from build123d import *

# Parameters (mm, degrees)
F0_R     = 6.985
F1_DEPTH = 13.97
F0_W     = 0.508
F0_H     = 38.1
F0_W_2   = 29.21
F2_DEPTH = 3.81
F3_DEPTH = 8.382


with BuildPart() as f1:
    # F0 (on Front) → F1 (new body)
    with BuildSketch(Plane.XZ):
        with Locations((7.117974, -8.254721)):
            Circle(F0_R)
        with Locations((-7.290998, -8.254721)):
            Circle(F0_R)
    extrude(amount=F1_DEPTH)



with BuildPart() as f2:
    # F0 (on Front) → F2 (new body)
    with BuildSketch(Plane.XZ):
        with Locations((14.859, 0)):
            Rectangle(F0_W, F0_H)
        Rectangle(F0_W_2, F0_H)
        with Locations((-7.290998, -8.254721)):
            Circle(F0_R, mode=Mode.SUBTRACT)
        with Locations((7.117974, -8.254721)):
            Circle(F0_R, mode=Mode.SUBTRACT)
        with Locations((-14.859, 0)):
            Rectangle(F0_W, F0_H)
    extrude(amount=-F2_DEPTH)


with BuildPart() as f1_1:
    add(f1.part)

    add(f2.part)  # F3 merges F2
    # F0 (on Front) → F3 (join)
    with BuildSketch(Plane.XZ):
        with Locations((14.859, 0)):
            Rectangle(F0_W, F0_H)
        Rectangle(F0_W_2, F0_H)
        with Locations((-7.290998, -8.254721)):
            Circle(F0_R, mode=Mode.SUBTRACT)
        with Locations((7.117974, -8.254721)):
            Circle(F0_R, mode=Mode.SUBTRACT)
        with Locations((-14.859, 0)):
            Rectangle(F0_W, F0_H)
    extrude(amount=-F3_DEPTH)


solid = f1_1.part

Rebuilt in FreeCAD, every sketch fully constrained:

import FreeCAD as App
import Part
import Sketcher

V = App.Vector
Q = App.Units.Quantity


def add_polygon(sketch, points):
    """Adds a closed chain of lines whose ends are joined by coincident constraints."""
    first, n = sketch.GeometryCount, len(points)
    for a, b in zip(points, points[1:] + points[:1]):
        sketch.addGeometry(Part.LineSegment(App.Vector(*a, 0), App.Vector(*b, 0)), False)
    for i in range(n):
        sketch.addConstraint(Sketcher.Constraint("Coincident", first + i, 2, first + (i + 1) % n, 1))

doc = App.newDocument("Part")
body = doc.addObject("PartDesign::Body", "Body")
body.AllowCompound = True

# Sketch on XZ plane
sketch1 = body.newObject("Sketcher::SketchObject", "Sketch")
sketch1.AttachmentSupport = (doc.getObject("XZ_Plane"), [""])
sketch1.MapMode = "FlatFace"
sketch1.addGeometry(Part.Circle(V(7, -8, 0), V(0, 0, 1), 7), False)
sketch1.addGeometry(Part.Circle(V(-7, -8, 0), V(0, 0, 1), 7), False)
sketch1.addConstraint(Sketcher.Constraint("Equal", 0, 1))
sketch1.addConstraint(Sketcher.Constraint("Horizontal", 0, 3, 1, 3))
sketch1.addConstraint(Sketcher.Constraint("Diameter", 0, Q("0.55 in")))
sketch1.addConstraint(Sketcher.Constraint("DistanceY", 0, 3, -1, 1, Q("8.254721 mm")))
sketch1.addConstraint(Sketcher.Constraint("DistanceX", -1, 1, 0, 3, Q("7.117974 mm")))
sketch1.addConstraint(Sketcher.Constraint("DistanceX", 1, 3, -1, 1, Q("7.290998 mm")))
pad1 = body.newObject("PartDesign::Pad", "Pad")
pad1.Profile = sketch1
pad1.Length = Q("0.55 in")
body2 = doc.addObject("PartDesign::Body", "Body001")

# Sketch on XZ plane
sketch2 = body2.newObject("Sketcher::SketchObject", "Sketch001")
sketch2.AttachmentSupport = (doc.getObject("XZ_Plane001"), [""])
sketch2.MapMode = "FlatFace"
add_polygon(sketch2, [(15, -19), (15, 19), (-15, 19), (-15, -19)])  # lines 0-3
sketch2.addGeometry(Part.Circle(V(-7, -8, 0), V(0, 0, 1), 7), False)  # 4
sketch2.addGeometry(Part.Circle(V(7, -8, 0), V(0, 0, 1), 7), False)  # 5
sketch2.addConstraint(Sketcher.Constraint("Vertical", 0))
sketch2.addConstraint(Sketcher.Constraint("Horizontal", 1))
sketch2.addConstraint(Sketcher.Constraint("Vertical", 2))
sketch2.addConstraint(Sketcher.Constraint("Horizontal", 3))
sketch2.addConstraint(Sketcher.Constraint("Equal", 4, 5))
sketch2.addConstraint(Sketcher.Constraint("Symmetric", 0, 2, 2, 2, -1, 1))
sketch2.addConstraint(Sketcher.Constraint("Horizontal", 4, 3, 5, 3))
sketch2.addConstraint(Sketcher.Constraint("Diameter", 4, Q("0.55 in")))
sketch2.addConstraint(Sketcher.Constraint("DistanceY", 0, 1, 0, 2, Q("1.5 in")))
sketch2.addConstraint(Sketcher.Constraint("DistanceX", 1, 2, 1, 1, Q("1.19 in")))
sketch2.addConstraint(Sketcher.Constraint("DistanceX", 4, 3, 0, 2, Q("22.403998 mm")))
sketch2.addConstraint(Sketcher.Constraint("DistanceY", 4, 3, -1, 1, Q("8.254721 mm")))
sketch2.addConstraint(Sketcher.Constraint("DistanceX", -1, 1, 5, 3, Q("7.117974 mm")))
pad2 = body2.newObject("PartDesign::Pad", "Pad001")
pad2.Profile = sketch2
pad2.Length = Q("0.15 in")
pad2.Reversed = True
body.AllowCompound = True
doc.recompute()

boolean = body.newObject("PartDesign::Boolean", "Boolean")
boolean.Type = "Fuse"
boolean.addObjects([body2])

# Sketch on XZ plane
sketch3 = body.newObject("Sketcher::SketchObject", "Sketch002")
sketch3.AttachmentSupport = (doc.getObject("XZ_Plane"), [""])
sketch3.MapMode = "FlatFace"
add_polygon(sketch3, [(15, -19), (15, 19), (-15, 19), (-15, -19)])  # lines 0-3
sketch3.addGeometry(Part.Circle(V(-7, -8, 0), V(0, 0, 1), 7), False)  # 4
sketch3.addGeometry(Part.Circle(V(7, -8, 0), V(0, 0, 1), 7), False)  # 5
sketch3.addConstraint(Sketcher.Constraint("Vertical", 0))
sketch3.addConstraint(Sketcher.Constraint("Horizontal", 1))
sketch3.addConstraint(Sketcher.Constraint("Vertical", 2))
sketch3.addConstraint(Sketcher.Constraint("Horizontal", 3))
sketch3.addConstraint(Sketcher.Constraint("Equal", 4, 5))
sketch3.addConstraint(Sketcher.Constraint("Symmetric", 0, 2, 2, 2, -1, 1))
sketch3.addConstraint(Sketcher.Constraint("Horizontal", 4, 3, 5, 3))
sketch3.addConstraint(Sketcher.Constraint("Diameter", 4, Q("0.55 in")))
sketch3.addConstraint(Sketcher.Constraint("DistanceY", 0, 1, 0, 2, Q("1.5 in")))
sketch3.addConstraint(Sketcher.Constraint("DistanceX", 1, 2, 1, 1, Q("1.19 in")))
sketch3.addConstraint(Sketcher.Constraint("DistanceX", 4, 3, 0, 2, Q("22.403998 mm")))
sketch3.addConstraint(Sketcher.Constraint("DistanceY", 4, 3, -1, 1, Q("8.254721 mm")))
sketch3.addConstraint(Sketcher.Constraint("DistanceX", -1, 1, 5, 3, Q("7.117974 mm")))
pad3 = body.newObject("PartDesign::Pad", "Pad002")
pad3.Profile = sketch3
pad3.Length = Q("0.33 in")
pad3.Reversed = True

doc.recompute()
